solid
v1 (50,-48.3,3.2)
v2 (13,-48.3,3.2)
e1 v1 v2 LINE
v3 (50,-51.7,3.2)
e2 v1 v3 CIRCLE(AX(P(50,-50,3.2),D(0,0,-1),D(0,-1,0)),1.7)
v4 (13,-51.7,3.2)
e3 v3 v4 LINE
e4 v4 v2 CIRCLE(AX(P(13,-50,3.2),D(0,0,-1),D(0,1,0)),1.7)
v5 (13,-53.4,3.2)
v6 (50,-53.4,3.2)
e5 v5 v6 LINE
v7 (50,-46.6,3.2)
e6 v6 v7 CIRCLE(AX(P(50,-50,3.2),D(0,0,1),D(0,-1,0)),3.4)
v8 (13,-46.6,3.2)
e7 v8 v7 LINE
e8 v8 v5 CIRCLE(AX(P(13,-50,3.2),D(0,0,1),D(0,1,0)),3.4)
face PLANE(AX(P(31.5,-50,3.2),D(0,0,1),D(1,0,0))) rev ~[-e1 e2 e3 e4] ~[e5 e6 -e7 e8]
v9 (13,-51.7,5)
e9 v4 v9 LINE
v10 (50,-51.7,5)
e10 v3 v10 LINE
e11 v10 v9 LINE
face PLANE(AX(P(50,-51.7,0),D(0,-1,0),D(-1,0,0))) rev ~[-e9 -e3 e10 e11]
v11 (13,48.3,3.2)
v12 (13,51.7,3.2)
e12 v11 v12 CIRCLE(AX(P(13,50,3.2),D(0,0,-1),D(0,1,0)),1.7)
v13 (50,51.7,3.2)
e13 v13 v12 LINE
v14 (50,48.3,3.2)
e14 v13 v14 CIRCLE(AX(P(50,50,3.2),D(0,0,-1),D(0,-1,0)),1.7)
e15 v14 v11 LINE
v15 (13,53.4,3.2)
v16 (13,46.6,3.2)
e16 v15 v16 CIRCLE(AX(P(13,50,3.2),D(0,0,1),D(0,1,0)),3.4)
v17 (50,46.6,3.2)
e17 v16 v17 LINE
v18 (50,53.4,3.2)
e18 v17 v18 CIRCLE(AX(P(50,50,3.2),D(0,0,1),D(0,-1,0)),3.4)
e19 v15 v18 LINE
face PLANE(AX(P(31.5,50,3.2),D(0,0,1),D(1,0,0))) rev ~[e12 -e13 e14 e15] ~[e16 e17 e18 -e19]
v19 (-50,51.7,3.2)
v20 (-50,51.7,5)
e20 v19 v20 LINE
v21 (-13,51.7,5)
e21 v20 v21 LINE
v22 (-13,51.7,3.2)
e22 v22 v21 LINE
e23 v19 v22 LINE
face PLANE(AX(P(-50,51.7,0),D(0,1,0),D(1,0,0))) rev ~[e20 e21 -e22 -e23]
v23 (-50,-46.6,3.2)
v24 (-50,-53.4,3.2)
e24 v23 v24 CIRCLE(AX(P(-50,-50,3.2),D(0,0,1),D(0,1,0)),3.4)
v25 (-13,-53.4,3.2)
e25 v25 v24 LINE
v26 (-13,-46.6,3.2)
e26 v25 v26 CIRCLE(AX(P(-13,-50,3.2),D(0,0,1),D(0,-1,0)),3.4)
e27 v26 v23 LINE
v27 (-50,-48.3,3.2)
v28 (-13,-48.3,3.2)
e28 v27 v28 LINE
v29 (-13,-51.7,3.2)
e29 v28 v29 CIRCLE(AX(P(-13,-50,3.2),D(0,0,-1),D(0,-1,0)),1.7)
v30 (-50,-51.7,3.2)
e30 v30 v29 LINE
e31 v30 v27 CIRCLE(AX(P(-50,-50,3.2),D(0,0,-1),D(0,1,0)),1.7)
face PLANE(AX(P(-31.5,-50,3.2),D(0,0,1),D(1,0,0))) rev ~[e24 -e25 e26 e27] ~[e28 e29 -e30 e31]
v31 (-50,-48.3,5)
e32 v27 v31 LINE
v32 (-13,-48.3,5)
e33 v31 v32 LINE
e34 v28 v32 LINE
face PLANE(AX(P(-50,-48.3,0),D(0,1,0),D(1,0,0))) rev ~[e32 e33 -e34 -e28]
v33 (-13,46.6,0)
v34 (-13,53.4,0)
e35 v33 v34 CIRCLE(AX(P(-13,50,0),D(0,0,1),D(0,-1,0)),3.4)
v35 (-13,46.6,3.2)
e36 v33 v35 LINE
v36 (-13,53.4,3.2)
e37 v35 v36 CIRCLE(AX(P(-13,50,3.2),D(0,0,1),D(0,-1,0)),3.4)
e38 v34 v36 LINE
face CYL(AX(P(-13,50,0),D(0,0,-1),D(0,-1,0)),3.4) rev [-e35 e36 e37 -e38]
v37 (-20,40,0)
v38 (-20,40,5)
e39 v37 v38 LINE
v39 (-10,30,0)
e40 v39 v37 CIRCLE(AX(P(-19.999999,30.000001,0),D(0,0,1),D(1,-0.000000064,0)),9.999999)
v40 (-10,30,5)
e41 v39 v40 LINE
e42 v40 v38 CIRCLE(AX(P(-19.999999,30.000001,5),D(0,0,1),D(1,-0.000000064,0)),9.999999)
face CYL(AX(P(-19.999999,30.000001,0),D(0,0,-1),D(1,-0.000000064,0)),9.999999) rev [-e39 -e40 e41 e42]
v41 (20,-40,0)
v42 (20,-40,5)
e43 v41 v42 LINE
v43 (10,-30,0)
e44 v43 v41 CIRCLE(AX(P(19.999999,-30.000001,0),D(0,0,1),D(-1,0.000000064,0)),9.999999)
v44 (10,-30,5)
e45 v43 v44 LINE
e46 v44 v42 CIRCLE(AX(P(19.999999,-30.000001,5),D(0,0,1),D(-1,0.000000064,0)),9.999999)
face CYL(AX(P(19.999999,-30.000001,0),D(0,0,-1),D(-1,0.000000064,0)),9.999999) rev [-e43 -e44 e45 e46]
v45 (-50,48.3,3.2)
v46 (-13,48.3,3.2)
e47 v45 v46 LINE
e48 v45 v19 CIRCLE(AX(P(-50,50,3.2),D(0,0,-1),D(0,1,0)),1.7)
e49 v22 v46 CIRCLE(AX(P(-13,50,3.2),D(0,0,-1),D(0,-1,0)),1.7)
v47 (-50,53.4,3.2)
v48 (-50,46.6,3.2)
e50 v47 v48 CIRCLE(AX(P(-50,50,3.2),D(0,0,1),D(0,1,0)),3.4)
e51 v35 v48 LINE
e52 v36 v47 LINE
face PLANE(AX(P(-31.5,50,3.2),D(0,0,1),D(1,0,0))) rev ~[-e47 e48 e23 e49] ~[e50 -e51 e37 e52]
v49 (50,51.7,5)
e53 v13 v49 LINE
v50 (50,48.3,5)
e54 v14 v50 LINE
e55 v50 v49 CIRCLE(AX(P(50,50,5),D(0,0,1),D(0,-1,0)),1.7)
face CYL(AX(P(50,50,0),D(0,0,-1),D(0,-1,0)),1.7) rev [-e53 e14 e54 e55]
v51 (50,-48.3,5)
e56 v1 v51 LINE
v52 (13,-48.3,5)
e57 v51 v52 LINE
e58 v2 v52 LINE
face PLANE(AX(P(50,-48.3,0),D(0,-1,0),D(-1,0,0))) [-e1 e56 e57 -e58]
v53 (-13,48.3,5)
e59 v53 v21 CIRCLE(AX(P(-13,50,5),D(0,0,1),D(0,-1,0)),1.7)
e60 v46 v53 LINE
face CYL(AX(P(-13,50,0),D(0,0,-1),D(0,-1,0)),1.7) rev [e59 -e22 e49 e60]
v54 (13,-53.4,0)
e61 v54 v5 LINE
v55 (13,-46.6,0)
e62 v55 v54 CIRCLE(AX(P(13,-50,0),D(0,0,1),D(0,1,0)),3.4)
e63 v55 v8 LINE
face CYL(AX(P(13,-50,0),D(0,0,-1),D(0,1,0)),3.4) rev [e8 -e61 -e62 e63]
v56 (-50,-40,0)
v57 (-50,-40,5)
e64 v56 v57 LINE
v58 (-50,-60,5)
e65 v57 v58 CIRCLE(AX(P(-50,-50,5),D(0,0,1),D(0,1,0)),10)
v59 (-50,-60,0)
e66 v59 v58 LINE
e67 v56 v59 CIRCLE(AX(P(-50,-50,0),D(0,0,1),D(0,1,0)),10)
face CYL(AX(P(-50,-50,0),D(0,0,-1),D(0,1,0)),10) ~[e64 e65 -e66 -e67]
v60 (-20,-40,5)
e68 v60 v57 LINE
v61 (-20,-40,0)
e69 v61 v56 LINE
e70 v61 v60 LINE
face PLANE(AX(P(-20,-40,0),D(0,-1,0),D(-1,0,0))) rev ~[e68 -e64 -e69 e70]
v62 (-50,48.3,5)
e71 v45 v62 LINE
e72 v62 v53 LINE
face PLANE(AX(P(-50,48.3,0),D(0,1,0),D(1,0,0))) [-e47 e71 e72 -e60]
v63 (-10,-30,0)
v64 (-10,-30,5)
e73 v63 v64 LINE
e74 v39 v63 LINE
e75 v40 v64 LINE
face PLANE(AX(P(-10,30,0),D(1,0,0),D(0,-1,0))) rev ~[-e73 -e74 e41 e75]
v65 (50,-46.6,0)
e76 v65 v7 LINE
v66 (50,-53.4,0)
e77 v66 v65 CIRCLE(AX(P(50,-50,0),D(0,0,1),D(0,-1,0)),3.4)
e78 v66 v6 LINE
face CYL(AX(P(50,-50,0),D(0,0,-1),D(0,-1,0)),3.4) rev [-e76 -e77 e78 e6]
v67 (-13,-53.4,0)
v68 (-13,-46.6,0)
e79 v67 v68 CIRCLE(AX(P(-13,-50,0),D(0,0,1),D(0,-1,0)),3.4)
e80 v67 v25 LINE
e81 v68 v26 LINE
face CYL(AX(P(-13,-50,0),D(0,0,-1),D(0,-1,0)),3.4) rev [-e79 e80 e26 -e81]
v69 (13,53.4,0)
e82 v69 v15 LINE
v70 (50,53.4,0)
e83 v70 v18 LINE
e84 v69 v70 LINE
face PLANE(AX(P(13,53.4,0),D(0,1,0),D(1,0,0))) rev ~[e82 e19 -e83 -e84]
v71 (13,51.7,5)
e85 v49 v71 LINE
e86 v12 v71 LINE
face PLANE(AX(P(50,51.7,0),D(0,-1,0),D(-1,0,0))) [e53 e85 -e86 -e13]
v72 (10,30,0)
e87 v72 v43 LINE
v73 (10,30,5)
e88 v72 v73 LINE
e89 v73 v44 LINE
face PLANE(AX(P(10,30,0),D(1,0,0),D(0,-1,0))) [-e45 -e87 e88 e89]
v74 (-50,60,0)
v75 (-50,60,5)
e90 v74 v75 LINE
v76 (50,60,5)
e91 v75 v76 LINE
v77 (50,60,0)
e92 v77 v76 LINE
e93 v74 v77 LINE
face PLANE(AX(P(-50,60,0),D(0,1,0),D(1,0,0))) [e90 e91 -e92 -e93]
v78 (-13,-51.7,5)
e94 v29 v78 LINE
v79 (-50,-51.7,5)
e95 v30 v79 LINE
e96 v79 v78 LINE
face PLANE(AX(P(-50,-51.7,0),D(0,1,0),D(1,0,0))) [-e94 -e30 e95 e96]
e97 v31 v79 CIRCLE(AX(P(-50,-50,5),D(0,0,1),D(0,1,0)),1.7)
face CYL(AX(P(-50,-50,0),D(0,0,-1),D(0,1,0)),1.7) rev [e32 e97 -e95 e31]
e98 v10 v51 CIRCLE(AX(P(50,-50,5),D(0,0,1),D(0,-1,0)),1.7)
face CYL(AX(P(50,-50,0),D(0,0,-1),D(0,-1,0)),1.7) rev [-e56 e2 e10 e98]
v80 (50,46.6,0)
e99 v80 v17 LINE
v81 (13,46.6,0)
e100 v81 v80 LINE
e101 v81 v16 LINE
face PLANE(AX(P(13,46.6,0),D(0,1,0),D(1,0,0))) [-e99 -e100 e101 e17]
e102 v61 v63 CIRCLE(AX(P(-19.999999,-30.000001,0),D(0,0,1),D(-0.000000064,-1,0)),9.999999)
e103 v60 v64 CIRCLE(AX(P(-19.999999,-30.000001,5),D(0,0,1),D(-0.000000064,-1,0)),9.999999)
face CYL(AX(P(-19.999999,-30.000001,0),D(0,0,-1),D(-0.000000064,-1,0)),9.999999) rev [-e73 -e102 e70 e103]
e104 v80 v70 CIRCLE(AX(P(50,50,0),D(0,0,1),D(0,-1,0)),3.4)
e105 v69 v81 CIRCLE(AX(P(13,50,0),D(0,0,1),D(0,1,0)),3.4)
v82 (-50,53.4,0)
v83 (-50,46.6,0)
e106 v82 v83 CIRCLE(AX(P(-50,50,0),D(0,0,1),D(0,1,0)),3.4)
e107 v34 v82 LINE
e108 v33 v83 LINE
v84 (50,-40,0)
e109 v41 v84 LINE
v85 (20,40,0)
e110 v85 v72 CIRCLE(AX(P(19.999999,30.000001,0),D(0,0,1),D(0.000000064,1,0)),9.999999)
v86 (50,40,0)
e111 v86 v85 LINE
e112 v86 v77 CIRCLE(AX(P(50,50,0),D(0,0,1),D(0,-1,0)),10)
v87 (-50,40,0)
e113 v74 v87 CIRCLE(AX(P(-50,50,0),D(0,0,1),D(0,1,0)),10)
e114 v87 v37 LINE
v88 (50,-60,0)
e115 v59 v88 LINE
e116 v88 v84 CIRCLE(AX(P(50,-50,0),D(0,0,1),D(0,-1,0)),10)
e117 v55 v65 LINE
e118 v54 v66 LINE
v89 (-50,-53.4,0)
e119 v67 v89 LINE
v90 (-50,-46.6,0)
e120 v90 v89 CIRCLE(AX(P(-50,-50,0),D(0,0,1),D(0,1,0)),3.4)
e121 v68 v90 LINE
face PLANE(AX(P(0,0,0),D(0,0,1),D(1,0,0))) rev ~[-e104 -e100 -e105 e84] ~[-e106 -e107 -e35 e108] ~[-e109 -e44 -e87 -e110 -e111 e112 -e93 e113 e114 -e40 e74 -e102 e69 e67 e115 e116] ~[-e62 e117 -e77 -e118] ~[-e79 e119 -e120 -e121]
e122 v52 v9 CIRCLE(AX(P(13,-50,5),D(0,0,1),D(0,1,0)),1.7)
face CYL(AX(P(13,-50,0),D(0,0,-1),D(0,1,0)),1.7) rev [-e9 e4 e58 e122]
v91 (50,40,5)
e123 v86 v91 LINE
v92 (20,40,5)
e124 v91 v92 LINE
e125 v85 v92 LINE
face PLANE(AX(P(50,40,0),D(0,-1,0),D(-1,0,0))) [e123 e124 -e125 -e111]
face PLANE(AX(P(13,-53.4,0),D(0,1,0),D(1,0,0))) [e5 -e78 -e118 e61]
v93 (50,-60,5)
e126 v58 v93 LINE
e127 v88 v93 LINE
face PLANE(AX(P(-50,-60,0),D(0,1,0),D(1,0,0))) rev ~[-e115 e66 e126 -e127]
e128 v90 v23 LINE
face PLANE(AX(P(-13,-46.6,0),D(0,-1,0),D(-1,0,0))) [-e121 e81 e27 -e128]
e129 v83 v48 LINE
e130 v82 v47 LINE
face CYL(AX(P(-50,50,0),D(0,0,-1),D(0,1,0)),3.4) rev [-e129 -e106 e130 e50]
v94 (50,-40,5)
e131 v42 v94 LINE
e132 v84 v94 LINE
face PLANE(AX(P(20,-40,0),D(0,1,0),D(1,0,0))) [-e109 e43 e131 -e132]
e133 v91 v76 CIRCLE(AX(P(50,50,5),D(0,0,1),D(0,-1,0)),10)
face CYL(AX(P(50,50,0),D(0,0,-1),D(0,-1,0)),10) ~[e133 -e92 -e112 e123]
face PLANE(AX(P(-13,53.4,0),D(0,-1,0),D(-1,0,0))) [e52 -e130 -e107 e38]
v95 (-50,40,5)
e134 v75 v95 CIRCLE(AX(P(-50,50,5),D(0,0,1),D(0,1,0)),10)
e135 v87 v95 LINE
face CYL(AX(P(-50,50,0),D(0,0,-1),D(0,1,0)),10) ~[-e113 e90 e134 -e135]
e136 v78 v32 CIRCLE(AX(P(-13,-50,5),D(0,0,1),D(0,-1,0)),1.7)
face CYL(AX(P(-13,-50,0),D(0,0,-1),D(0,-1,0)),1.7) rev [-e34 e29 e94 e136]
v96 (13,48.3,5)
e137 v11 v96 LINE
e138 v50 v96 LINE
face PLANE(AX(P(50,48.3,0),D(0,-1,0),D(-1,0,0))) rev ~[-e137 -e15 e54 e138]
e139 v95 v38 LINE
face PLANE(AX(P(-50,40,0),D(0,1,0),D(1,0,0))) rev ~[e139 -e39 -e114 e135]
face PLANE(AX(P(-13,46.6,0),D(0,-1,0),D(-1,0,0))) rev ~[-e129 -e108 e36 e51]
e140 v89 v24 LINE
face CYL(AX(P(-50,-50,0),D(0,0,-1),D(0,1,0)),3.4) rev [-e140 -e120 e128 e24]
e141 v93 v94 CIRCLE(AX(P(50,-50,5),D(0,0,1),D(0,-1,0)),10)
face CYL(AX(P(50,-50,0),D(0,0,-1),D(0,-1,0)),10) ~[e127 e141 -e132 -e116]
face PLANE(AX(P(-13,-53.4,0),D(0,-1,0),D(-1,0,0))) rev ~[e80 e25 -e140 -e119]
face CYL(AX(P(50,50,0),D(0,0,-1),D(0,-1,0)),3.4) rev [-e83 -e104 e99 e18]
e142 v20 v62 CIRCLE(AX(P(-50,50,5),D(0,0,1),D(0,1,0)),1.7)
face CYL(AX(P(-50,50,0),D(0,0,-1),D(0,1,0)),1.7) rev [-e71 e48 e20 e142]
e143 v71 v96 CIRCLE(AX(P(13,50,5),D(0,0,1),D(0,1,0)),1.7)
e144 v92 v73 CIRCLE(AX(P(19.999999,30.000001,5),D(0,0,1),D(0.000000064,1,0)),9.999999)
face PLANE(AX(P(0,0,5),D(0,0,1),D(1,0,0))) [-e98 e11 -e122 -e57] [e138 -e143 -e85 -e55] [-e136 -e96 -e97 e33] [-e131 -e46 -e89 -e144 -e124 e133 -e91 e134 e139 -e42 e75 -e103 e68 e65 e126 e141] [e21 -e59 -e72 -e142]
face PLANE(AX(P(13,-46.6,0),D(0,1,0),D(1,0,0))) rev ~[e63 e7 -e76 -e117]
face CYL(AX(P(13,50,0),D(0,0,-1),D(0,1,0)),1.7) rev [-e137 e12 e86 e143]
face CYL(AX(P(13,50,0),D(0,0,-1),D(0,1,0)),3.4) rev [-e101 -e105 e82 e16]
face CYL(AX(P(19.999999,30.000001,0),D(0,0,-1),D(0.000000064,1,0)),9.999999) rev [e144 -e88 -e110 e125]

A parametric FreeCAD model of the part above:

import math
import FreeCAD as App
import Part
import Sketcher

V = App.Vector
Q = App.Units.Quantity

doc = App.newDocument("Part")
body = doc.addObject("PartDesign::Body", "Body")

# Sketch on XY plane
sketch1 = doc.addObject("Sketcher::SketchObject", "Sketch")
body.addObject(sketch1)
sketch1.AttachmentSupport = (doc.XY_Plane, [""])
sketch1.MapMode = "FlatFace"
sketch1.addGeometry([
    Part.ArcOfCircle(Part.Circle(V(-50, -50, 0), V(0, 0, 1), 10), math.radians(90), math.radians(270)),  # 0
    Part.LineSegment(V(-50, -60, 0), V(50, -60, 0)),  # 1
    Part.ArcOfCircle(Part.Circle(V(50, -50, 0), V(0, 0, 1), 10), math.radians(-90), math.radians(90)),  # 2
    Part.LineSegment(V(50, -40, 0), V(20, -40, 0)),  # 3
    Part.ArcOfCircle(Part.Circle(V(20, -30, 0), V(0, 0, 1), 10), math.radians(180), math.radians(270)),  # 4
    Part.LineSegment(V(10, -30, 0), V(10, 30, 0)),  # 5
    Part.ArcOfCircle(Part.Circle(V(20, 30, 0), V(0, 0, 1), 10), math.radians(90), math.radians(180)),  # 6
    Part.LineSegment(V(20, 40, 0), V(50, 40, 0)),  # 7
    Part.ArcOfCircle(Part.Circle(V(50, 50, 0), V(0, 0, 1), 10), math.radians(-90), math.radians(90)),  # 8
    Part.LineSegment(V(50, 60, 0), V(-50, 60, 0)),  # 9
    Part.ArcOfCircle(Part.Circle(V(-50, 50, 0), V(0, 0, 1), 10), math.radians(90), math.radians(270)),  # 10
    Part.LineSegment(V(-50, 40, 0), V(-20, 40, 0)),  # 11
    Part.ArcOfCircle(Part.Circle(V(-20, 30, 0), V(0, 0, 1), 10), math.radians(0), math.radians(90)),  # 12
    Part.LineSegment(V(-10, 30, 0), V(-10, -30, 0)),  # 13
    Part.ArcOfCircle(Part.Circle(V(-20, -30, 0), V(0, 0, 1), 10), math.radians(-90), math.radians(0)),  # 14
    Part.LineSegment(V(-20, -40, 0), V(-50, -40, 0)),  # 15
    Part.ArcOfCircle(Part.Circle(V(-50, -50, 0), V(0, 0, 1), 1.7), math.radians(90), math.radians(270)),  # 16
    Part.LineSegment(V(-50, -48.3, 0), V(-13, -48.3, 0)),  # 17
    Part.ArcOfCircle(Part.Circle(V(-13, -50, 0), V(0, 0, 1), 1.7), math.radians(-90), math.radians(90)),  # 18
    Part.LineSegment(V(-13, -51.7, 0), V(-50, -51.7, 0)),  # 19
    Part.ArcOfCircle(Part.Circle(V(50, -50, 0), V(0, 0, 1), 1.7), math.radians(-90), math.radians(90)),  # 20
    Part.LineSegment(V(50, -51.7, 0), V(13, -51.7, 0)),  # 21
    Part.ArcOfCircle(Part.Circle(V(13, -50, 0), V(0, 0, 1), 1.7), math.radians(90), math.radians(270)),  # 22
    Part.LineSegment(V(13, -48.3, 0), V(50, -48.3, 0)),  # 23
    Part.ArcOfCircle(Part.Circle(V(-50, 50, 0), V(0, 0, 1), 1.7), math.radians(90), math.radians(270)),  # 24
    Part.LineSegment(V(-50, 51.7, 0), V(-13, 51.7, 0)),  # 25
    Part.ArcOfCircle(Part.Circle(V(-13, 50, 0), V(0, 0, 1), 1.7), math.radians(-90), math.radians(90)),  # 26
    Part.LineSegment(V(-13, 48.3, 0), V(-50, 48.3, 0)),  # 27
    Part.ArcOfCircle(Part.Circle(V(50, 50, 0), V(0, 0, 1), 1.7), math.radians(-90), math.radians(90)),  # 28
    Part.LineSegment(V(50, 48.3, 0), V(13, 48.3, 0)),  # 29
    Part.ArcOfCircle(Part.Circle(V(13, 50, 0), V(0, 0, 1), 1.7), math.radians(90), math.radians(270)),  # 30
    Part.LineSegment(V(13, 51.7, 0), V(50, 51.7, 0)),  # 31
], False)
sketch1.addConstraint([
    Sketcher.Constraint("Tangent", 0, 2, 1, 1),
    Sketcher.Constraint("Tangent", 1, 2, 2, 1),
    Sketcher.Constraint("Tangent", 2, 2, 3, 1),
    Sketcher.Constraint("Tangent", 3, 2, 4, 2),
    Sketcher.Constraint("Tangent", 4, 1, 5, 1),
    Sketcher.Constraint("Tangent", 5, 2, 6, 2),
    Sketcher.Constraint("Tangent", 6, 1, 7, 1),
    Sketcher.Constraint("Tangent", 7, 2, 8, 1),
    Sketcher.Constraint("Tangent", 8, 2, 9, 1),
    Sketcher.Constraint("Tangent", 9, 2, 10, 1),
    Sketcher.Constraint("Tangent", 10, 2, 11, 1),
    Sketcher.Constraint("Tangent", 11, 2, 12, 2),
    Sketcher.Constraint("Tangent", 12, 1, 13, 1),
    Sketcher.Constraint("Tangent", 13, 2, 14, 2),
    Sketcher.Constraint("Tangent", 14, 1, 15, 1),
    Sketcher.Constraint("Tangent", 15, 2, 0, 1),
    Sketcher.Constraint("Tangent", 16, 1, 17, 1),
    Sketcher.Constraint("Tangent", 17, 2, 18, 2),
    Sketcher.Constraint("Tangent", 18, 1, 19, 1),
    Sketcher.Constraint("Tangent", 19, 2, 16, 2),
    Sketcher.Constraint("Tangent", 20, 1, 21, 1),
    Sketcher.Constraint("Tangent", 21, 2, 22, 2),
    Sketcher.Constraint("Tangent", 22, 1, 23, 1),
    Sketcher.Constraint("Tangent", 23, 2, 20, 2),
    Sketcher.Constraint("Tangent", 24, 1, 25, 1),
    Sketcher.Constraint("Tangent", 25, 2, 26, 2),
    Sketcher.Constraint("Tangent", 26, 1, 27, 1),
    Sketcher.Constraint("Tangent", 27, 2, 24, 2),
    Sketcher.Constraint("Tangent", 28, 1, 29, 1),
    Sketcher.Constraint("Tangent", 29, 2, 30, 2),
    Sketcher.Constraint("Tangent", 30, 1, 31, 1),
    Sketcher.Constraint("Tangent", 31, 2, 28, 2),
    Sketcher.Constraint("Horizontal", 1),
    Sketcher.Constraint("Horizontal", 3),
    Sketcher.Constraint("Vertical", 5),
    Sketcher.Constraint("Horizontal", 7),
    Sketcher.Constraint("Horizontal", 9),
    Sketcher.Constraint("Horizontal", 11),
    Sketcher.Constraint("Vertical", 13),
    Sketcher.Constraint("Horizontal", 15),
    Sketcher.Constraint("Horizontal", 17),
    Sketcher.Constraint("Horizontal", 19),
    Sketcher.Constraint("Horizontal", 21),
    Sketcher.Constraint("Horizontal", 23),
    Sketcher.Constraint("Horizontal", 25),
    Sketcher.Constraint("Horizontal", 27),
    Sketcher.Constraint("Horizontal", 29),
    Sketcher.Constraint("Horizontal", 31),
    Sketcher.Constraint("Coincident", 16, 3, 0, 3),
    Sketcher.Constraint("Coincident", 20, 3, 2, 3),
    Sketcher.Constraint("Coincident", 24, 3, 10, 3),
    Sketcher.Constraint("Coincident", 28, 3, 8, 3),
    Sketcher.Constraint("Equal", 0, 2),
    Sketcher.Constraint("Equal", 2, 4),
    Sketcher.Constraint("Equal", 4, 6),
    Sketcher.Constraint("Equal", 6, 8),
    Sketcher.Constraint("Equal", 8, 10),
    Sketcher.Constraint("Equal", 10, 12),
    Sketcher.Constraint("Equal", 12, 14),
    Sketcher.Constraint("Equal", 18, 20),
    Sketcher.Constraint("Equal", 22, 24),
    Sketcher.Constraint("Equal", 26, 28),
    Sketcher.Constraint("Symmetric", 0, 3, 8, 3, -1, 1),
    Sketcher.Constraint("Vertical", 2, 3, 8, 3),
    Sketcher.Constraint("Vertical", 0, 3, 10, 3),
    Sketcher.Constraint("Vertical", 18, 3, 26, 3),
    Sketcher.Constraint("Vertical", 22, 3, 30, 3),
    Sketcher.Constraint("Equal", 7, 11),
    Sketcher.Constraint("Equal", 19, 21),
    Sketcher.Constraint("Radius", 0, Q("10 mm")),
    Sketcher.Constraint("Radius", 16, Q("1.7 mm")),
    Sketcher.Constraint("DistanceX", 1, 1, 1, 2, Q("100 mm")),
    Sketcher.Constraint("DistanceX", 3, 2, 3, 1, Q("30 mm")),
    Sketcher.Constraint("DistanceX", 17, 1, 17, 2, Q("37 mm")),
    Sketcher.Constraint("DistanceY", 5, 1, 5, 2, Q("60 mm")),
])
pad1 = doc.addObject("PartDesign::Pad", "Pad")
body.addObject(pad1)
pad1.Profile = sketch1
pad1.Length = 5

# Sketch on XY plane
sketch2 = doc.addObject("Sketcher::SketchObject", "Sketch001")
body.addObject(sketch2)
sketch2.AttachmentSupport = (doc.XY_Plane, [""])
sketch2.MapMode = "FlatFace"
sketch2.addGeometry([
    Part.ArcOfCircle(Part.Circle(V(-13, -50, 0), V(0, 0, 1), 3.4), math.radians(-90), math.radians(90)),  # 0
    Part.LineSegment(V(-13, -46.6, 0), V(-50, -46.6, 0)),  # 1
    Part.ArcOfCircle(Part.Circle(V(-50, -50, 0), V(0, 0, 1), 3.4), math.radians(90), math.radians(270)),  # 2
    Part.LineSegment(V(-50, -53.4, 0), V(-13, -53.4, 0)),  # 3
    Part.ArcOfCircle(Part.Circle(V(13, -50, 0), V(0, 0, 1), 3.4), math.radians(90), math.radians(270)),  # 4
    Part.LineSegment(V(13, -53.4, 0), V(50, -53.4, 0)),  # 5
    Part.ArcOfCircle(Part.Circle(V(50, -50, 0), V(0, 0, 1), 3.4), math.radians(-90), math.radians(90)),  # 6
    Part.LineSegment(V(50, -46.6, 0), V(13, -46.6, 0)),  # 7
    Part.ArcOfCircle(Part.Circle(V(-13, 50, 0), V(0, 0, 1), 3.4), math.radians(-90), math.radians(90)),  # 8
    Part.LineSegment(V(-13, 53.4, 0), V(-50, 53.4, 0)),  # 9
    Part.ArcOfCircle(Part.Circle(V(-50, 50, 0), V(0, 0, 1), 3.4), math.radians(90), math.radians(270)),  # 10
    Part.LineSegment(V(-50, 46.6, 0), V(-13, 46.6, 0)),  # 11
    Part.ArcOfCircle(Part.Circle(V(13, 50, 0), V(0, 0, 1), 3.4), math.radians(90), math.radians(270)),  # 12
    Part.LineSegment(V(13, 46.6, 0), V(50, 46.6, 0)),  # 13
    Part.ArcOfCircle(Part.Circle(V(50, 50, 0), V(0, 0, 1), 3.4), math.radians(-90), math.radians(90)),  # 14
    Part.LineSegment(V(50, 53.4, 0), V(13, 53.4, 0)),  # 15
], False)
sketch2.addConstraint([
    Sketcher.Constraint("Tangent", 0, 2, 1, 1),
    Sketcher.Constraint("Tangent", 1, 2, 2, 1),
    Sketcher.Constraint("Tangent", 2, 2, 3, 1),
    Sketcher.Constraint("Tangent", 3, 2, 0, 1),
    Sketcher.Constraint("Tangent", 4, 2, 5, 1),
    Sketcher.Constraint("Tangent", 5, 2, 6, 1),
    Sketcher.Constraint("Tangent", 6, 2, 7, 1),
    Sketcher.Constraint("Tangent", 7, 2, 4, 1),
    Sketcher.Constraint("Tangent", 8, 2, 9, 1),
    Sketcher.Constraint("Tangent", 9, 2, 10, 1),
    Sketcher.Constraint("Tangent", 10, 2, 11, 1),
    Sketcher.Constraint("Tangent", 11, 2, 8, 1),
    Sketcher.Constraint("Tangent", 12, 2, 13, 1),
    Sketcher.Constraint("Tangent", 13, 2, 14, 1),
    Sketcher.Constraint("Tangent", 14, 2, 15, 1),
    Sketcher.Constraint("Tangent", 15, 2, 12, 1),
    Sketcher.Constraint("Horizontal", 1),
    Sketcher.Constraint("Horizontal", 3),
    Sketcher.Constraint("Horizontal", 5),
    Sketcher.Constraint("Horizontal", 7),
    Sketcher.Constraint("Horizontal", 9),
    Sketcher.Constraint("Horizontal", 11),
    Sketcher.Constraint("Horizontal", 13),
    Sketcher.Constraint("Horizontal", 15),
    Sketcher.Constraint("Equal", 2, 4),
    Sketcher.Constraint("Equal", 6, 8),
    Sketcher.Constraint("Equal", 10, 12),
    Sketcher.Constraint("Symmetric", 4, 3, 8, 3, -1, 1),
    Sketcher.Constraint("Symmetric", 0, 3, 12, 3, -1, 1),
    Sketcher.Constraint("Symmetric", 0, 3, 4, 3, -2),
    Sketcher.Constraint("Vertical", 2, 3, 10, 3),
    Sketcher.Constraint("Vertical", 6, 3, 14, 3),
    Sketcher.Constraint("Equal", 3, 5),
    Sketcher.Constraint("Radius", 0, Q("3.4 mm")),
    Sketcher.Constraint("DistanceX", 1, 2, 1, 1, Q("37 mm")),
    Sketcher.Constraint("DistanceX", 0, 3, -1, 1, Q("13 mm")),
    Sketcher.Constraint("DistanceY", 0, 3, -1, 1, Q("50 mm")),
])
pocket1 = doc.addObject("PartDesign::Pocket", "Pocket")
body.addObject(pocket1)
pocket1.Profile = sketch2
pocket1.Length = 3.2
pocket1.Reversed = True

doc.recompute()
